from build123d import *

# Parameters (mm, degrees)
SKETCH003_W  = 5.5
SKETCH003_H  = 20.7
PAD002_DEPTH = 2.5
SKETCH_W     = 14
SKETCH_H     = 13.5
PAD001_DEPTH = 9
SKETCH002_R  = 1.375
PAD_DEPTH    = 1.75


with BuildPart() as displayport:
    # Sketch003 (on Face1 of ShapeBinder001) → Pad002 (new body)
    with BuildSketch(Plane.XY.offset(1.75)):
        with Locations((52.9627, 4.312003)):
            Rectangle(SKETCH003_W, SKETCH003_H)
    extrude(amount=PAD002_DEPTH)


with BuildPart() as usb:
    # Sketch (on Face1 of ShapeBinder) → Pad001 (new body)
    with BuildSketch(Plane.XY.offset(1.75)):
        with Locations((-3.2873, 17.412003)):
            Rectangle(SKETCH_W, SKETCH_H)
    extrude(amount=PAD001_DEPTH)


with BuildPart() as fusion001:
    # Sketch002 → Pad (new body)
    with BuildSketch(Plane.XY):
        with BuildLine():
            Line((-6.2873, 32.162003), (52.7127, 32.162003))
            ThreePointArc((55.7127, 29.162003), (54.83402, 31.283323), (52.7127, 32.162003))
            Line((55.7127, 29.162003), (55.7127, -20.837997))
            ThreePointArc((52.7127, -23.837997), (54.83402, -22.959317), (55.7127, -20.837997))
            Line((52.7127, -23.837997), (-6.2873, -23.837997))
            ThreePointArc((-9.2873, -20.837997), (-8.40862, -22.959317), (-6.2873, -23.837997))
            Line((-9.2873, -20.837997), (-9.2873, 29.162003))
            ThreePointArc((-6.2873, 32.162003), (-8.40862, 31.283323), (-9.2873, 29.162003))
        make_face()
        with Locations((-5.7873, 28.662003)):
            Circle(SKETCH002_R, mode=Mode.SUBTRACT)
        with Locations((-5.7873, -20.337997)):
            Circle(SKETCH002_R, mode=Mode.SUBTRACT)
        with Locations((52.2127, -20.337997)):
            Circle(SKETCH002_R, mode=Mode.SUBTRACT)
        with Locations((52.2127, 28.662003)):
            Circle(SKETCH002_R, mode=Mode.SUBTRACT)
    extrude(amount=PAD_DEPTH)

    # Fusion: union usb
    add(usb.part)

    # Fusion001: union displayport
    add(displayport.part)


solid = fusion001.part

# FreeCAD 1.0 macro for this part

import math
import FreeCAD as App
import Part
import Sketcher
from FreeCAD import Vector
Q = App.Units.Quantity


def add_polygon(sketch, points):
    """Adds a closed chain of lines whose ends are joined by coincident constraints."""
    first, n = sketch.GeometryCount, len(points)
    for a, b in zip(points, points[1:] + points[:1]):
        sketch.addGeometry(Part.LineSegment(App.Vector(*a, 0), App.Vector(*b, 0)), False)
    for i in range(n):
        sketch.addConstraint(Sketcher.Constraint("Coincident", first + i, 2, first + (i + 1) % n, 1))

doc = App.newDocument("Part")
body = doc.addObject("PartDesign::Body", "Body")

# Sketch on XY plane
sketch1 = body.newObject("Sketcher::SketchObject", "Sketch")
sketch1.AttachmentSupport = (doc.getObject("XY_Plane"), [""])
sketch1.MapMode = "FlatFace"
sketch1.AttachmentOffset = App.Placement(Vector(0, 0, 1.75), App.Rotation())
add_polygon(sketch1, [(50, 15), (50, -6), (56, -6), (56, 15)])  # lines 0-3
sketch1.addConstraint([
    Sketcher.Constraint("Vertical", 0),
    Sketcher.Constraint("Horizontal", 1),
    Sketcher.Constraint("Vertical", 2),
    Sketcher.Constraint("Horizontal", 3),
    Sketcher.Constraint("DistanceX", 1, 1, 1, 2, Q("5.5 mm")),
    Sketcher.Constraint("DistanceY", 0, 2, 0, 1, Q("20.7 mm")),
    Sketcher.Constraint("DistanceX", -1, 1, 0, 2, Q("50.2127 mm")),
    Sketcher.Constraint("DistanceY", 0, 2, -1, 1, Q("6.037997 mm")),
])
pad1 = body.newObject("PartDesign::Pad", "Pad")
pad1.Profile = sketch1
pad1.Length = 2.5
body2 = doc.addObject("PartDesign::Body", "Body001")

# Sketch on XY plane
sketch2 = body2.newObject("Sketcher::SketchObject", "Sketch001")
sketch2.AttachmentSupport = (doc.getObject("XY_Plane001"), [""])
sketch2.MapMode = "FlatFace"
sketch2.AttachmentOffset = App.Placement(Vector(0, 0, 1.75), App.Rotation())
add_polygon(sketch2, [(-10, 24), (-10, 11), (4, 11), (4, 24)])  # lines 0-3
sketch2.addConstraint([
    Sketcher.Constraint("Vertical", 0),
    Sketcher.Constraint("Horizontal", 1),
    Sketcher.Constraint("Vertical", 2),
    Sketcher.Constraint("Horizontal", 3),
    Sketcher.Constraint("DistanceX", 1, 1, 1, 2, Q("14 mm")),
    Sketcher.Constraint("DistanceY", 0, 2, 0, 1, Q("13.5 mm")),
    Sketcher.Constraint("DistanceX", 0, 2, -1, 1, Q("10.2873 mm")),
    Sketcher.Constraint("DistanceY", -1, 1, 0, 2, Q("10.662003 mm")),
])
pad2 = body2.newObject("PartDesign::Pad", "Pad001")
pad2.Profile = sketch2
pad2.Length = 9
body3 = doc.addObject("PartDesign::Body", "Body002")

# Sketch on XY plane
sketch3 = body3.newObject("Sketcher::SketchObject", "Sketch002")
sketch3.AttachmentSupport = (doc.getObject("XY_Plane002"), [""])
sketch3.MapMode = "FlatFace"
sketch3.addGeometry([
    Part.LineSegment(Vector(52.7, 32.2, 0), Vector(-6.3, 32.2, 0)),  # 0
    Part.ArcOfCircle(Part.Circle(Vector(-6.3, 29.2, 0), Vector(0, 0, 1), 3), math.radians(90), math.radians(180)),  # 1
    Part.LineSegment(Vector(-9.3, 29.2, 0), Vector(-9.3, -20.8, 0)),  # 2
    Part.ArcOfCircle(Part.Circle(Vector(-6.3, -20.8, 0), Vector(0, 0, 1), 3), math.radians(-180), math.radians(-90)),  # 3
    Part.LineSegment(Vector(-6.3, -23.8, 0), Vector(52.7, -23.8, 0)),  # 4
    Part.ArcOfCircle(Part.Circle(Vector(52.7, -20.8, 0), Vector(0, 0, 1), 3), math.radians(-90), math.radians(0)),  # 5
    Part.LineSegment(Vector(55.7, -20.8, 0), Vector(55.7, 29.2, 0)),  # 6
    Part.ArcOfCircle(Part.Circle(Vector(52.7, 29.2, 0), Vector(0, 0, 1), 3), math.radians(0), math.radians(90)),  # 7
    Part.Circle(Vector(52.2, -20.3, 0), Vector(0, 0, 1), 1.4),  # 8
    Part.Circle(Vector(-5.8, -20.3, 0), Vector(0, 0, 1), 1.4),  # 9
    Part.Circle(Vector(52.2, 28.7, 0), Vector(0, 0, 1), 1.4),  # 10
    Part.Circle(Vector(-5.8, 28.7, 0), Vector(0, 0, 1), 1.4),  # 11
], False)
sketch3.addConstraint([
    Sketcher.Constraint("Tangent", 0, 2, 1, 1),
    Sketcher.Constraint("Tangent", 1, 2, 2, 1),
    Sketcher.Constraint("Tangent", 2, 2, 3, 1),
    Sketcher.Constraint("Tangent", 3, 2, 4, 1),
    Sketcher.Constraint("Tangent", 4, 2, 5, 1),
    Sketcher.Constraint("Tangent", 5, 2, 6, 1),
    Sketcher.Constraint("Tangent", 6, 2, 7, 1),
    Sketcher.Constraint("Tangent", 7, 2, 0, 1),
    Sketcher.Constraint("Horizontal", 0),
    Sketcher.Constraint("Vertical", 2),
    Sketcher.Constraint("Horizontal", 4),
    Sketcher.Constraint("Vertical", 6),
    Sketcher.Constraint("Equal", 1, 3),
    Sketcher.Constraint("Equal", 3, 5),
    Sketcher.Constraint("Equal", 5, 7),
    Sketcher.Constraint("Equal", 8, 9),
    Sketcher.Constraint("Equal", 9, 10),
    Sketcher.Constraint("Equal", 10, 11),
    Sketcher.Constraint("Horizontal", 8, 3, 9, 3),
    Sketcher.Constraint("Horizontal", 10, 3, 11, 3),
    Sketcher.Constraint("Vertical", 8, 3, 10, 3),
    Sketcher.Constraint("Vertical", 9, 3, 11, 3),
    Sketcher.Constraint("Radius", 1, Q("3.000001 mm")),
    Sketcher.Constraint("Diameter", 8, Q("2.75 mm")),
    Sketcher.Constraint("DistanceX", 0, 2, 0, 1, Q("59 mm")),
    Sketcher.Constraint("DistanceY", 2, 2, 2, 1, Q("50 mm")),
    Sketcher.Constraint("DistanceX", 9, 3, 8, 3, Q("58 mm")),
    Sketcher.Constraint("DistanceY", 8, 3, 10, 3, Q("49 mm")),
    Sketcher.Constraint("DistanceX", 8, 3, 5, 3, Q("0.499999 mm")),
    Sketcher.Constraint("DistanceY", 5, 3, 8, 3, Q("0.499999 mm")),
    Sketcher.Constraint("DistanceY", -1, 1, 1, 3, Q("29.162002 mm")),
    Sketcher.Constraint("DistanceX", 1, 3, -1, 1, Q("6.287299 mm")),
])
pad3 = body3.newObject("PartDesign::Pad", "Pad002")
pad3.Profile = sketch3
pad3.Length = 1.75
doc.recompute()

boolean = body3.newObject("PartDesign::Boolean", "Boolean")
boolean.Type = "Fuse"
boolean.addObjects([body2])
doc.recompute()

boolean2 = body3.newObject("PartDesign::Boolean", "Boolean001")
boolean2.Type = "Fuse"
boolean2.addObjects([body])

doc.recompute()
